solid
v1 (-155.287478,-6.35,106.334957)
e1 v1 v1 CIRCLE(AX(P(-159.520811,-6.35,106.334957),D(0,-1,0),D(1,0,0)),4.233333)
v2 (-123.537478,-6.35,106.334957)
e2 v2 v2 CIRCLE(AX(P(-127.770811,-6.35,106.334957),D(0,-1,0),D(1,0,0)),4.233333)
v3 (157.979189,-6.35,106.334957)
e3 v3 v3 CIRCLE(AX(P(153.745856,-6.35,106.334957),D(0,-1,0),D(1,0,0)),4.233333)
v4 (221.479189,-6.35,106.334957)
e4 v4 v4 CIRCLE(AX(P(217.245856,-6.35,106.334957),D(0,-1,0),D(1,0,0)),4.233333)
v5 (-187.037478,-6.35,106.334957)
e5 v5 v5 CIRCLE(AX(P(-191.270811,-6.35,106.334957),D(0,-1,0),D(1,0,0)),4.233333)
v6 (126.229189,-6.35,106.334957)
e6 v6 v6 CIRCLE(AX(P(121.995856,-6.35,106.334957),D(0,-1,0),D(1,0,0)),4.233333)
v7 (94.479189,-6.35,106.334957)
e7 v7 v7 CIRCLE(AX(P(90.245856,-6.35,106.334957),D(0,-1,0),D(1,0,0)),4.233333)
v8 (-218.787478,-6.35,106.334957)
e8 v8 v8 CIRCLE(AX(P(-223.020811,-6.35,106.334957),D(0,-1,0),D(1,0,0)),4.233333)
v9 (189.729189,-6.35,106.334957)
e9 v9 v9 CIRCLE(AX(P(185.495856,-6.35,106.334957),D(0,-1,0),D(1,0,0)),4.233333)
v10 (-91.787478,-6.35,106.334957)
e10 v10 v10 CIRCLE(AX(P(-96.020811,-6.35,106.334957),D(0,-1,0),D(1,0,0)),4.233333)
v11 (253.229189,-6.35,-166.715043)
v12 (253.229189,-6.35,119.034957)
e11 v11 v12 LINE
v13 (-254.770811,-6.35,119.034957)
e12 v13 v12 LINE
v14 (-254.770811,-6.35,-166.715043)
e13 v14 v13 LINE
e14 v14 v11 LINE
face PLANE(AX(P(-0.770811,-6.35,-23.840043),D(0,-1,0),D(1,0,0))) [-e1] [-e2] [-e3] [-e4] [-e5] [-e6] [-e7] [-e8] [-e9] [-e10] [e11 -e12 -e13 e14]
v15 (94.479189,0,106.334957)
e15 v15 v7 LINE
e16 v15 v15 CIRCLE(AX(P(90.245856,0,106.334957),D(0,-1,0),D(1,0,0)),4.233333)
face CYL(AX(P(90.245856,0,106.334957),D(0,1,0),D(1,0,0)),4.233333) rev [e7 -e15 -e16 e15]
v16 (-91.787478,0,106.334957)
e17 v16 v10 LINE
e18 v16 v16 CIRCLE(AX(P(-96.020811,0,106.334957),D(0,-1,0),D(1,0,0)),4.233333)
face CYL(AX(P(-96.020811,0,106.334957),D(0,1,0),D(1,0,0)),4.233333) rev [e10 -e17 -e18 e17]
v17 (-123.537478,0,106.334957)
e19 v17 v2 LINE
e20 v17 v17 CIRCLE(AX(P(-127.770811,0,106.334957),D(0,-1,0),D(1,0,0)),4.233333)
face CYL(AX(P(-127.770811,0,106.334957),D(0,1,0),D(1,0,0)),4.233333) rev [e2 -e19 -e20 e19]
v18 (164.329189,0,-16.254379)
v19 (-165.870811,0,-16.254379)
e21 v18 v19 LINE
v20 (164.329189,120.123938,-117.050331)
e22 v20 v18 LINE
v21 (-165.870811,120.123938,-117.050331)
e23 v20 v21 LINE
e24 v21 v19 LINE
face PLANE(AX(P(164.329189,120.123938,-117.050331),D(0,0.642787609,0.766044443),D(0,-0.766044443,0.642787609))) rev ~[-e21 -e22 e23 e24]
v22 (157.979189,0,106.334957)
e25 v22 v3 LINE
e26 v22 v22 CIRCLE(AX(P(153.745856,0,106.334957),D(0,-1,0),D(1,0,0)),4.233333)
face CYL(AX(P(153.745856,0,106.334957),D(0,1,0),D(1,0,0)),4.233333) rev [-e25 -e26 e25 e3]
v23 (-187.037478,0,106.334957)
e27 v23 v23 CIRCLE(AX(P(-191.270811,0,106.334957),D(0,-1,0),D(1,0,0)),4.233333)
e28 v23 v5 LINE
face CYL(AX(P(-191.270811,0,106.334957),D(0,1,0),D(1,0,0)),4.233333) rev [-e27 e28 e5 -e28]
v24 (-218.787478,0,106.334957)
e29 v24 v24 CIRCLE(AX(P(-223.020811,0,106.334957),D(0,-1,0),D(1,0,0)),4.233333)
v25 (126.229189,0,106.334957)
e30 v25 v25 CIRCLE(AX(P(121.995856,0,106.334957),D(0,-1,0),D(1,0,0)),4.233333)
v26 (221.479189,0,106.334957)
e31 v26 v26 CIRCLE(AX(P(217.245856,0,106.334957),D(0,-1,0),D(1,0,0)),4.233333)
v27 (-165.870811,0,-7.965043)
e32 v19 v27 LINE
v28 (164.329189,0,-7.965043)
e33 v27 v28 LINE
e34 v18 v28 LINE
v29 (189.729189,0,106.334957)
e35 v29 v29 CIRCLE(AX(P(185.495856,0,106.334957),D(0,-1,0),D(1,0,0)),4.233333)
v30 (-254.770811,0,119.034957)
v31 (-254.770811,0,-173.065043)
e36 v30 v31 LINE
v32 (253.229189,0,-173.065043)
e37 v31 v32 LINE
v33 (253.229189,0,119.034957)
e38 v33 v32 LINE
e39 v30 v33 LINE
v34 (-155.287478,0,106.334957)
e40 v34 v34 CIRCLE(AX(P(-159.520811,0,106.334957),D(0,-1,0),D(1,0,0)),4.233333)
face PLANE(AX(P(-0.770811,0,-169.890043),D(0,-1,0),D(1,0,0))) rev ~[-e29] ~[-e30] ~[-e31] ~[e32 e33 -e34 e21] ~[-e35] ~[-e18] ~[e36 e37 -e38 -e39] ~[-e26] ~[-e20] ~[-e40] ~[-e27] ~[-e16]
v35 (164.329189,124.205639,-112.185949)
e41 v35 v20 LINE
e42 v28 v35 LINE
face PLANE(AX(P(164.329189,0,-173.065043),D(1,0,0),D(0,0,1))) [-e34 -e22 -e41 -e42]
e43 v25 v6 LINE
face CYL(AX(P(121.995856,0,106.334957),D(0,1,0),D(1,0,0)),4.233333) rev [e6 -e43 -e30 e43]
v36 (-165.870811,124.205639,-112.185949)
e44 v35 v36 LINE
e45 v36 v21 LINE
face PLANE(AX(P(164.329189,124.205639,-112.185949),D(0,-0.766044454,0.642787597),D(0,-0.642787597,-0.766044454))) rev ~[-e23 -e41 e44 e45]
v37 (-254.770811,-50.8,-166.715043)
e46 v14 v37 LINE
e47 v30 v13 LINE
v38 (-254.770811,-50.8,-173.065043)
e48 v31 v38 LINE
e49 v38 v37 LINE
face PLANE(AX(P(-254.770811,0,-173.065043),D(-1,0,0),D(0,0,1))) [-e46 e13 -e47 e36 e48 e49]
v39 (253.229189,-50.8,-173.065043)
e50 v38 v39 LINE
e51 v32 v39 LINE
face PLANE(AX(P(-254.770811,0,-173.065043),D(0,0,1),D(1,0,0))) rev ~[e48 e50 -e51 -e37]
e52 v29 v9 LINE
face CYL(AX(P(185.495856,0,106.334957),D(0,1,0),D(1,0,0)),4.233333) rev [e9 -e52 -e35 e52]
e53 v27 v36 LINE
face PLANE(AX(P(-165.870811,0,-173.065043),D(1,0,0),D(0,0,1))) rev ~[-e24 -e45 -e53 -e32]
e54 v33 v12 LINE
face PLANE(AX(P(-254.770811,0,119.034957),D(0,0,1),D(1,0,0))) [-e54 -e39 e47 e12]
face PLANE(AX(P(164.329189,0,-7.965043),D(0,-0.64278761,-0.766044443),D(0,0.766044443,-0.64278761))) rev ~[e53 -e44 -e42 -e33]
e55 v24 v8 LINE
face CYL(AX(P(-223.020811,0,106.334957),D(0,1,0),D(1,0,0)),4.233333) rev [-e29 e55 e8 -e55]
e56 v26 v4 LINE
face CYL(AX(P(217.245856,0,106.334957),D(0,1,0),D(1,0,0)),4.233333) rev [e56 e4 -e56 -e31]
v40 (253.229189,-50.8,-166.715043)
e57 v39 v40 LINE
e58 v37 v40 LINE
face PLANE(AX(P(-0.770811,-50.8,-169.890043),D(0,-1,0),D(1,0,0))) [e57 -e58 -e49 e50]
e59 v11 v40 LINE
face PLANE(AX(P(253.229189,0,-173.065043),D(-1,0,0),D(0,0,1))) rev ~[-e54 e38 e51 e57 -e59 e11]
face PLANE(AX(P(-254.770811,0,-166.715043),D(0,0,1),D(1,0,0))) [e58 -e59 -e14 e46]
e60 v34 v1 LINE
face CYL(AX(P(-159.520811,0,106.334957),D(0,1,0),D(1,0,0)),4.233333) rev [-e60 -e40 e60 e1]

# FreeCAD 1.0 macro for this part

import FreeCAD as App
import Part
import Sketcher

V = App.Vector
Q = App.Units.Quantity

doc = App.newDocument("Part")
body = doc.addObject("PartDesign::Body", "Body")

# Sketch on XZ plane
sketch1 = body.newObject("Sketcher::SketchObject", "Sketch")
sketch1.AttachmentSupport = (doc.getObject("XZ_Plane"), [""])
sketch1.MapMode = "FlatFace"
sketch1.addGeometry(Part.LineSegment(V(-254.8, 119, 0), V(-254.8, -166.7, 0)), False)
sketch1.addGeometry(Part.LineSegment(V(-254.8, -166.7, 0), V(253.2, -166.7, 0)), False)
sketch1.addGeometry(Part.LineSegment(V(253.2, -166.7, 0), V(253.2, 119, 0)), False)
sketch1.addGeometry(Part.LineSegment(V(253.2, 119, 0), V(-254.8, 119, 0)), False)
sketch1.addGeometry(Part.Circle(V(-223, 106.3, 0), V(0, 0, 1), 4.2), False)
sketch1.addGeometry(Part.Circle(V(-191.3, 106.3, 0), V(0, 0, 1), 4.2), False)
sketch1.addGeometry(Part.Circle(V(-159.5, 106.3, 0), V(0, 0, 1), 4.2), False)
sketch1.addGeometry(Part.Circle(V(-127.8, 106.3, 0), V(0, 0, 1), 4.2), False)
sketch1.addGeometry(Part.Circle(V(-96, 106.3, 0), V(0, 0, 1), 4.2), False)
sketch1.addGeometry(Part.Circle(V(90.2, 106.3, 0), V(0, 0, 1), 4.2), False)
sketch1.addGeometry(Part.Circle(V(122, 106.3, 0), V(0, 0, 1), 4.2), False)
sketch1.addGeometry(Part.Circle(V(153.7, 106.3, 0), V(0, 0, 1), 4.2), False)
sketch1.addGeometry(Part.Circle(V(185.5, 106.3, 0), V(0, 0, 1), 4.2), False)
sketch1.addGeometry(Part.Circle(V(217.2, 106.3, 0), V(0, 0, 1), 4.2), False)
sketch1.addConstraint(Sketcher.Constraint("Coincident", 0, 2, 1, 1))
sketch1.addConstraint(Sketcher.Constraint("Coincident", 1, 2, 2, 1))
sketch1.addConstraint(Sketcher.Constraint("Coincident", 2, 2, 3, 1))
sketch1.addConstraint(Sketcher.Constraint("Coincident", 3, 2, 0, 1))
sketch1.addConstraint(Sketcher.Constraint("Vertical", 0))
sketch1.addConstraint(Sketcher.Constraint("Horizontal", 1))
sketch1.addConstraint(Sketcher.Constraint("Vertical", 2))
sketch1.addConstraint(Sketcher.Constraint("Horizontal", 3))
sketch1.addConstraint(Sketcher.Constraint("Equal", 4, 5))
sketch1.addConstraint(Sketcher.Constraint("Equal", 5, 6))
sketch1.addConstraint(Sketcher.Constraint("Equal", 6, 7))
sketch1.addConstraint(Sketcher.Constraint("Equal", 7, 8))
sketch1.addConstraint(Sketcher.Constraint("Equal", 8, 9))
sketch1.addConstraint(Sketcher.Constraint("Equal", 9, 10))
sketch1.addConstraint(Sketcher.Constraint("Equal", 10, 11))
sketch1.addConstraint(Sketcher.Constraint("Equal", 11, 12))
sketch1.addConstraint(Sketcher.Constraint("Equal", 12, 13))
sketch1.addConstraint(Sketcher.Constraint("Horizontal", 4, 3, 5, 3))
sketch1.addConstraint(Sketcher.Constraint("Horizontal", 5, 3, 6, 3))
sketch1.addConstraint(Sketcher.Constraint("Horizontal", 6, 3, 7, 3))
sketch1.addConstraint(Sketcher.Constraint("Horizontal", 7, 3, 8, 3))
sketch1.addConstraint(Sketcher.Constraint("Horizontal", 8, 3, 9, 3))
sketch1.addConstraint(Sketcher.Constraint("Horizontal", 9, 3, 10, 3))
sketch1.addConstraint(Sketcher.Constraint("Horizontal", 10, 3, 11, 3))
sketch1.addConstraint(Sketcher.Constraint("Horizontal", 11, 3, 12, 3))
sketch1.addConstraint(Sketcher.Constraint("Horizontal", 12, 3, 13, 3))
sketch1.addConstraint(Sketcher.Constraint("DistanceX", 1, 1, 1, 2, Q("20 in")))
sketch1.addConstraint(Sketcher.Constraint("DistanceX", 4, 3, 8, 3, Q("5 in")))
sketch1.addConstraint(Sketcher.Constraint("DistanceX", 9, 3, 13, 3, Q("5 in")))
sketch1.addConstraint(Sketcher.Constraint("DistanceX", 0, 2, 7, 3, Q("5 in")))
sketch1.addConstraint(Sketcher.Constraint("DistanceY", 0, 2, 0, 1, Q("11.25 in")))
sketch1.addConstraint(Sketcher.Constraint("DistanceX", 4, 3, 6, 3, Q("2.5 in")))
sketch1.addConstraint(Sketcher.Constraint("DistanceX", 5, 3, 7, 3, Q("2.5 in")))
sketch1.addConstraint(Sketcher.Constraint("DistanceX", 9, 3, 11, 3, Q("2.5 in")))
sketch1.addConstraint(Sketcher.Constraint("DistanceX", 10, 3, 12, 3, Q("2.5 in")))
sketch1.addConstraint(Sketcher.Constraint("DistanceY", 13, 3, 2, 2, Q("0.5 in")))
sketch1.addConstraint(Sketcher.Constraint("DistanceX", 4, 3, 5, 3, Q("1.25 in")))
sketch1.addConstraint(Sketcher.Constraint("DistanceX", 9, 3, 10, 3, Q("1.25 in")))
sketch1.addConstraint(Sketcher.Constraint("Diameter", 4, Q("8.466666 mm")))
sketch1.addConstraint(Sketcher.Constraint("DistanceX", 4, 3, -1, 1, Q("223.020811 mm")))
sketch1.addConstraint(Sketcher.Constraint("DistanceY", -1, 1, 4, 3, Q("106.334957 mm")))
sketch1.addConstraint(Sketcher.Constraint("DistanceX", -1, 1, 9, 3, Q("90.245856 mm")))
pad1 = body.newObject("PartDesign::Pad", "Pad")
pad1.Profile = sketch1
pad1.Length = Q("0.25 in")

# Sketch on XZ plane
sketch2 = body.newObject("Sketcher::SketchObject", "Sketch001")
sketch2.AttachmentSupport = (doc.getObject("XZ_Plane"), [""])
sketch2.MapMode = "FlatFace"
sketch2.addGeometry(Part.LineSegment(V(-255, -167, 0), V(-255, -173, 0)), False)
sketch2.addGeometry(Part.LineSegment(V(-255, -173, 0), V(253, -173, 0)), False)
sketch2.addGeometry(Part.LineSegment(V(253, -173, 0), V(253, -167, 0)), False)
sketch2.addGeometry(Part.LineSegment(V(253, -167, 0), V(-255, -167, 0)), False)
sketch2.addConstraint(Sketcher.Constraint("Coincident", 0, 2, 1, 1))
sketch2.addConstraint(Sketcher.Constraint("Coincident", 1, 2, 2, 1))
sketch2.addConstraint(Sketcher.Constraint("Coincident", 2, 2, 3, 1))
sketch2.addConstraint(Sketcher.Constraint("Coincident", 3, 2, 0, 1))
sketch2.addConstraint(Sketcher.Constraint("Vertical", 0))
sketch2.addConstraint(Sketcher.Constraint("Horizontal", 1))
sketch2.addConstraint(Sketcher.Constraint("Vertical", 2))
sketch2.addConstraint(Sketcher.Constraint("Horizontal", 3))
sketch2.addConstraint(Sketcher.Constraint("DistanceX", 1, 1, 1, 2, Q("20 in")))
sketch2.addConstraint(Sketcher.Constraint("DistanceY", 0, 2, 0, 1, Q("0.25 in")))
sketch2.addConstraint(Sketcher.Constraint("DistanceX", 0, 2, -1, 1, Q("254.770811 mm")))
sketch2.addConstraint(Sketcher.Constraint("DistanceY", 0, 2, -1, 1, Q("173.065043 mm")))
pad2 = body.newObject("PartDesign::Pad", "Pad001")
pad2.Profile = sketch2
pad2.Length = Q("2 in")

# Sketch on XZ plane
sketch3 = body.newObject("Sketcher::SketchObject", "Sketch002")
sketch3.AttachmentSupport = (doc.getObject("XZ_Plane"), [""])
sketch3.MapMode = "FlatFace"
sketch3.addGeometry(Part.LineSegment(V(-166, -8, 0), V(-166, -173, 0)), False)
sketch3.addGeometry(Part.LineSegment(V(-166, -173, 0), V(164, -173, 0)), False)
sketch3.addGeometry(Part.LineSegment(V(164, -173, 0), V(164, -8, 0)), False)
sketch3.addGeometry(Part.LineSegment(V(164, -8, 0), V(-166, -8, 0)), False)
sketch3.addConstraint(Sketcher.Constraint("Coincident", 0, 2, 1, 1))
sketch3.addConstraint(Sketcher.Constraint("Coincident", 1, 2, 2, 1))
sketch3.addConstraint(Sketcher.Constraint("Coincident", 2, 2, 3, 1))
sketch3.addConstraint(Sketcher.Constraint("Coincident", 3, 2, 0, 1))
sketch3.addConstraint(Sketcher.Constraint("Vertical", 0))
sketch3.addConstraint(Sketcher.Constraint("Horizontal", 1))
sketch3.addConstraint(Sketcher.Constraint("Vertical", 2))
sketch3.addConstraint(Sketcher.Constraint("Horizontal", 3))
sketch3.addConstraint(Sketcher.Constraint("DistanceX", 1, 1, 1, 2, Q("13 in")))
sketch3.addConstraint(Sketcher.Constraint("DistanceY", 0, 2, 0, 1, Q("6.5 in")))
sketch3.addConstraint(Sketcher.Constraint("DistanceX", 0, 2, -1, 1, Q("165.870811 mm")))
sketch3.addConstraint(Sketcher.Constraint("DistanceY", 0, 2, -1, 1, Q("173.065043 mm")))
pad3 = body.newObject("PartDesign::Pad", "Pad002")
pad3.Profile = sketch3
pad3.Length = Q("6 in")
pad3.Reversed = True

# Sketch on YZ plane
sketch4 = body.newObject("Sketcher::SketchObject", "Sketch003")
sketch4.AttachmentSupport = (doc.getObject("YZ_Plane"), [""])
sketch4.MapMode = "FlatFace"
sketch4.AttachmentOffset = App.Placement(V(0, 0, 164.329189), App.Rotation())
sketch4.addGeometry(Part.LineSegment(V(124, -112, 0), V(120, -117, 0)), False)
sketch4.addGeometry(Part.LineSegment(V(120, -117, 0), V(0, -16, 0)), False)
sketch4.addGeometry(Part.LineSegment(V(0, -16, 0), V(0, -173, 0)), False)
sketch4.addGeometry(Part.LineSegment(V(0, -173, 0), V(152, -173, 0)), False)
sketch4.addGeometry(Part.LineSegment(V(152, -173, 0), V(152, -8, 0)), False)
sketch4.addGeometry(Part.LineSegment(V(152, -8, 0), V(0, -8, 0)), False)
sketch4.addGeometry(Part.LineSegment(V(0, -8, 0), V(124, -112, 0)), False)
sketch4.addConstraint(Sketcher.Constraint("Coincident", 0, 2, 1, 1))
sketch4.addConstraint(Sketcher.Constraint("Coincident", 1, 2, 2, 1))
sketch4.addConstraint(Sketcher.Constraint("Coincident", 2, 2, 3, 1))
sketch4.addConstraint(Sketcher.Constraint("Coincident", 3, 2, 4, 1))
sketch4.addConstraint(Sketcher.Constraint("Coincident", 4, 2, 5, 1))
sketch4.addConstraint(Sketcher.Constraint("Coincident", 5, 2, 6, 1))
sketch4.addConstraint(Sketcher.Constraint("Coincident", 6, 2, 0, 1))
sketch4.addConstraint(Sketcher.Constraint("Vertical", 2))
sketch4.addConstraint(Sketcher.Constraint("Horizontal", 3))
sketch4.addConstraint(Sketcher.Constraint("Vertical", 4))
sketch4.addConstraint(Sketcher.Constraint("Horizontal", 5))
sketch4.addConstraint(Sketcher.Constraint("PointOnObject", 1, 2, -2))
sketch4.addConstraint(Sketcher.Constraint("PointOnObject", 5, 2, -2))
sketch4.addConstraint(Sketcher.Constraint("Perpendicular", 0, 1))
sketch4.addConstraint(Sketcher.Constraint("Parallel", 1, 6))
sketch4.addConstraint(Sketcher.Constraint("DistanceX", 3, 1, 3, 2, Q("6 in")))
sketch4.addConstraint(Sketcher.Constraint("DistanceY", 4, 1, 4, 2, Q("6.5 in")))
sketch4.addConstraint(Sketcher.Constraint("Angle", 0, Q("-129.999999 deg")))
sketch4.addConstraint(Sketcher.Constraint("Distance", 0, Q("0.25 in")))
sketch4.addConstraint(Sketcher.Constraint("DistanceY", 0, 2, -1, 1, Q("117.050331 mm")))
sketch4.addConstraint(Sketcher.Constraint("DistanceY", 1, 2, -1, 1, Q("16.254379 mm")))
pocket1 = body.newObject("PartDesign::Pocket", "Pocket")
pocket1.Profile = sketch4
pocket1.Type = "ThroughAll"

doc.recompute()
